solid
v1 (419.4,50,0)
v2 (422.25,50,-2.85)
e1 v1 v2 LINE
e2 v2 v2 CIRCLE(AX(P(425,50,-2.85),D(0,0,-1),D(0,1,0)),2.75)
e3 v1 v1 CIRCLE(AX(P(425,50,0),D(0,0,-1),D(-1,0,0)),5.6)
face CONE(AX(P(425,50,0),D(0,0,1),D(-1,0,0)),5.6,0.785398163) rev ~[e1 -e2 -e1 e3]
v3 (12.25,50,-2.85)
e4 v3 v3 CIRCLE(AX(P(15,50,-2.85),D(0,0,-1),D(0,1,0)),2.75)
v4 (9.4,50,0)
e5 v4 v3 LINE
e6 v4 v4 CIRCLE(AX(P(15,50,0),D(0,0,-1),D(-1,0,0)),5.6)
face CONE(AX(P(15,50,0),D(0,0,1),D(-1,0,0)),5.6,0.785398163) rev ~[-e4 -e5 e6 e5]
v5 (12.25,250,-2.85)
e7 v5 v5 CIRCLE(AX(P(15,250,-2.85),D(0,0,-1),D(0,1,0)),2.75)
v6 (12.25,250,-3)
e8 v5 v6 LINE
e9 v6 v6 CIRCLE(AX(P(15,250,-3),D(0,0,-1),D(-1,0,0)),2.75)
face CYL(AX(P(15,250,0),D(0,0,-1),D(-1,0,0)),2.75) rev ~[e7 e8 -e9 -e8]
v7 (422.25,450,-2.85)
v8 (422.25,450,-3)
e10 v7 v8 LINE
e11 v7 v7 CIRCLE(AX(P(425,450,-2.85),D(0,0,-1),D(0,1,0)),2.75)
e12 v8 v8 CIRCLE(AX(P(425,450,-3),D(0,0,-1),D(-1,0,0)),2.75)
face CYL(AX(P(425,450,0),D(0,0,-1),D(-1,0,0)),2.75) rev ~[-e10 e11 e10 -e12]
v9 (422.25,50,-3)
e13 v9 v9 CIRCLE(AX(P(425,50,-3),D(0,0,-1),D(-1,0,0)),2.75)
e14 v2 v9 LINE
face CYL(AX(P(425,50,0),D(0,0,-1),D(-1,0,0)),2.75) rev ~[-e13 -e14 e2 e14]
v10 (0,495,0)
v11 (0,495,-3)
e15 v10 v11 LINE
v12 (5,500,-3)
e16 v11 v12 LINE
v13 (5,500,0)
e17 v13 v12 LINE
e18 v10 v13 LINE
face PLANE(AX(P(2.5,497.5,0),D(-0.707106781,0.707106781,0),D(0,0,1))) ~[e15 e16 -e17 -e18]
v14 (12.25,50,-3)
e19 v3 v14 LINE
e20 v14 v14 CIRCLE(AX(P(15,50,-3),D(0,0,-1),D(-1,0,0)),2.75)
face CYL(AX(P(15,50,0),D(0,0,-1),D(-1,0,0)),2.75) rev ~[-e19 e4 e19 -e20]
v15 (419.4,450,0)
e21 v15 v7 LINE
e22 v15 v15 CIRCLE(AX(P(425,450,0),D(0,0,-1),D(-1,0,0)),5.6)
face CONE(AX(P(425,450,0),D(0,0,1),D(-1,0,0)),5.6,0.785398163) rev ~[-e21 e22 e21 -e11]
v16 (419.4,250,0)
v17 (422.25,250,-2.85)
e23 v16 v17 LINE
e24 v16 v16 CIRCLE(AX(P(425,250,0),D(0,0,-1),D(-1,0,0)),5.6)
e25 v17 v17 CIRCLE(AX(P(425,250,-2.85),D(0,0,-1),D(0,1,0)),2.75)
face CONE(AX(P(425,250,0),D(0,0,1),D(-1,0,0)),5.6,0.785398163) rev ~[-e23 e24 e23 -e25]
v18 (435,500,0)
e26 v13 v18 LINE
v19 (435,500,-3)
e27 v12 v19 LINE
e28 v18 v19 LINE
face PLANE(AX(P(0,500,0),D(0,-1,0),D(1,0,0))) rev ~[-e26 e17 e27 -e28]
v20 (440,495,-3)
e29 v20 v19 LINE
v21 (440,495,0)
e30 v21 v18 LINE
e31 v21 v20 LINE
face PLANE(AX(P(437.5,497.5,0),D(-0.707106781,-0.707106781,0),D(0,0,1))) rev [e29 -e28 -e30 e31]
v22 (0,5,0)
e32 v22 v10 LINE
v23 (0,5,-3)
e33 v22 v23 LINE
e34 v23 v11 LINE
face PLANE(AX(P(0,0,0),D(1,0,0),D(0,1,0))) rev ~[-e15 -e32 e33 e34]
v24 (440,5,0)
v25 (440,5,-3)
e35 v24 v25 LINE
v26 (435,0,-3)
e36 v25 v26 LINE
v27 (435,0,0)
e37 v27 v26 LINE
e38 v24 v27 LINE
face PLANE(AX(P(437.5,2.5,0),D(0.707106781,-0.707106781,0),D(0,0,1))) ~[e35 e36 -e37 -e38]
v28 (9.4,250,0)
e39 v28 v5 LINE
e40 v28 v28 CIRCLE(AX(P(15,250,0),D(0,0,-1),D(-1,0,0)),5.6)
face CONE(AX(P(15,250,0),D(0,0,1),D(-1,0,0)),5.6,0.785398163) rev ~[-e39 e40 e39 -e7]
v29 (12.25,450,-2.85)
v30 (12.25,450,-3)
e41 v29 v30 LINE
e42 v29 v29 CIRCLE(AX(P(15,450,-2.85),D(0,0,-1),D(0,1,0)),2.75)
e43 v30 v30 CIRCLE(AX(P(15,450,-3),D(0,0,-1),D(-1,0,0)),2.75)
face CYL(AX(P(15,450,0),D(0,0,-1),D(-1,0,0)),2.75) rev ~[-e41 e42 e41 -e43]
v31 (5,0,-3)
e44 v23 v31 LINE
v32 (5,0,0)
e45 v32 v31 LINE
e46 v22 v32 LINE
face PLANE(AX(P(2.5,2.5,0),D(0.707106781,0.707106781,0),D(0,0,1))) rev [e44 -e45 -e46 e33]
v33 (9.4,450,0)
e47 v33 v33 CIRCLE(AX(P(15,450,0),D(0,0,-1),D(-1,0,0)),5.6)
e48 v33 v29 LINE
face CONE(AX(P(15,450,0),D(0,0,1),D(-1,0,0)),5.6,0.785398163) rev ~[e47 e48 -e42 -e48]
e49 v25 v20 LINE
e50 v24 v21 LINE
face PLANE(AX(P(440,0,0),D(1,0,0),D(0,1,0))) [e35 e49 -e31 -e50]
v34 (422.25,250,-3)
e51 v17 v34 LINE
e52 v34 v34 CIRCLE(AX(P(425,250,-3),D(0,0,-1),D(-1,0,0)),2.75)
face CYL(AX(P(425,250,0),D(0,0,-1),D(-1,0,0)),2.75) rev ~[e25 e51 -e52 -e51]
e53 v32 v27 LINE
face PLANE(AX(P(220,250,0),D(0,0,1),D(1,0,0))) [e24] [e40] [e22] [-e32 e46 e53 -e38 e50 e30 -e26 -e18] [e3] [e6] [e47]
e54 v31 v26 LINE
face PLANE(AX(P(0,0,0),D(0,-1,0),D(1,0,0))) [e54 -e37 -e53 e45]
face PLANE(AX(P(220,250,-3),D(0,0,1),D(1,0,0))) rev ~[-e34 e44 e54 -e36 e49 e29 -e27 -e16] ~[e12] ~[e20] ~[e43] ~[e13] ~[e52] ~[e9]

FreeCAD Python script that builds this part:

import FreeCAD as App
import Part
import Sketcher

V = App.Vector
Q = App.Units.Quantity


def edges_at(feature, points):
    """Names of the edges that pass closest to the given points."""
    edges = feature.Shape.Edges
    near = lambda p: min(range(len(edges)), key=lambda i: edges[i].distToShape(Part.Vertex(*p))[0])
    return sorted({f"Edge{near(p) + 1}" for p in points})


def add_polygon(sketch, points):
    """Adds a closed chain of lines whose ends are joined by coincident constraints."""
    first, n = sketch.GeometryCount, len(points)
    for a, b in zip(points, points[1:] + points[:1]):
        sketch.addGeometry(Part.LineSegment(App.Vector(*a, 0), App.Vector(*b, 0)), False)
    for i in range(n):
        sketch.addConstraint(Sketcher.Constraint("Coincident", first + i, 2, first + (i + 1) % n, 1))

doc = App.newDocument("Part")
body = doc.addObject("PartDesign::Body", "Body")

# Sketch on XY plane
sketch1 = body.newObject("Sketcher::SketchObject", "Sketch")
sketch1.AttachmentSupport = (doc.getObject("XY_Plane"), [""])
sketch1.MapMode = "FlatFace"
add_polygon(sketch1, [(0, 500), (0, 0), (440, 0), (440, 500)])  # lines 0-3
sketch1.addConstraint([
    Sketcher.Constraint("Vertical", 0),
    Sketcher.Constraint("Horizontal", 1),
    Sketcher.Constraint("Vertical", 2),
    Sketcher.Constraint("Horizontal", 3),
    Sketcher.Constraint("Coincident", 0, 2, -1, 1),
    Sketcher.Constraint("DistanceX", 1, 1, 1, 2, Q("440 mm")),
    Sketcher.Constraint("DistanceY", 0, 2, 0, 1, Q("500 mm")),
])
pad1 = body.newObject("PartDesign::Pad", "Pad")
pad1.Profile = sketch1
pad1.Length = 3
pad1.Reversed = True

# Sketch on XY plane
sketch2 = body.newObject("Sketcher::SketchObject", "Sketch001")
sketch2.AttachmentSupport = (doc.getObject("XY_Plane"), [""])
sketch2.MapMode = "FlatFace"
sketch2.addGeometry([
    Part.Circle(V(425, 50, 0), V(0, 0, 1), 2.8),  # 0
    Part.Circle(V(425, 250, 0), V(0, 0, 1), 2.8),  # 1
    Part.Circle(V(425, 450, 0), V(0, 0, 1), 2.8),  # 2
    Part.Circle(V(15, 450, 0), V(0, 0, 1), 2.8),  # 3
    Part.Circle(V(15, 250, 0), V(0, 0, 1), 2.8),  # 4
    Part.Circle(V(15, 50, 0), V(0, 0, 1), 2.8),  # 5
], False)
sketch2.addConstraint([
    Sketcher.Constraint("Equal", 0, 1),
    Sketcher.Constraint("Equal", 1, 2),
    Sketcher.Constraint("Equal", 2, 3),
    Sketcher.Constraint("Equal", 3, 4),
    Sketcher.Constraint("Equal", 4, 5),
    Sketcher.Constraint("Horizontal", 2, 3, 3, 3),
    Sketcher.Constraint("Horizontal", 1, 3, 4, 3),
    Sketcher.Constraint("Horizontal", 0, 3, 5, 3),
    Sketcher.Constraint("Vertical", 0, 3, 1, 3),
    Sketcher.Constraint("Vertical", 1, 3, 2, 3),
    Sketcher.Constraint("Vertical", 3, 3, 4, 3),
    Sketcher.Constraint("Vertical", 4, 3, 5, 3),
    Sketcher.Constraint("Diameter", 0, Q("5.5 mm")),
    Sketcher.Constraint("DistanceX", -1, 1, 0, 3, Q("425 mm")),
    Sketcher.Constraint("DistanceY", -1, 1, 0, 3, Q("50 mm")),
    Sketcher.Constraint("DistanceY", -1, 1, 1, 3, Q("250 mm")),
    Sketcher.Constraint("DistanceY", -1, 1, 2, 3, Q("450 mm")),
    Sketcher.Constraint("DistanceX", -1, 1, 3, 3, Q("15 mm")),
])
doc.recompute()
hole = body.newObject("PartDesign::Hole", "Hole")
hole.Profile = sketch2
hole.ThreadType = "None"
hole.Diameter = 5.5
hole.DepthType = "ThroughAll"
hole.HoleCutType = "Countersink"
hole.HoleCutDiameter = 11.2
hole.HoleCutCountersinkAngle = 90
doc.recompute()

chamfer = body.newObject("PartDesign::Chamfer", "Chamfer")
chamfer.Base = (hole, edges_at(hole, [
    (0, 0, -1.5),
    (440, 0, -1.5),
    (440, 500, -1.5),
    (0, 500, -1.5),
]))
chamfer.Size = 5

doc.recompute()
